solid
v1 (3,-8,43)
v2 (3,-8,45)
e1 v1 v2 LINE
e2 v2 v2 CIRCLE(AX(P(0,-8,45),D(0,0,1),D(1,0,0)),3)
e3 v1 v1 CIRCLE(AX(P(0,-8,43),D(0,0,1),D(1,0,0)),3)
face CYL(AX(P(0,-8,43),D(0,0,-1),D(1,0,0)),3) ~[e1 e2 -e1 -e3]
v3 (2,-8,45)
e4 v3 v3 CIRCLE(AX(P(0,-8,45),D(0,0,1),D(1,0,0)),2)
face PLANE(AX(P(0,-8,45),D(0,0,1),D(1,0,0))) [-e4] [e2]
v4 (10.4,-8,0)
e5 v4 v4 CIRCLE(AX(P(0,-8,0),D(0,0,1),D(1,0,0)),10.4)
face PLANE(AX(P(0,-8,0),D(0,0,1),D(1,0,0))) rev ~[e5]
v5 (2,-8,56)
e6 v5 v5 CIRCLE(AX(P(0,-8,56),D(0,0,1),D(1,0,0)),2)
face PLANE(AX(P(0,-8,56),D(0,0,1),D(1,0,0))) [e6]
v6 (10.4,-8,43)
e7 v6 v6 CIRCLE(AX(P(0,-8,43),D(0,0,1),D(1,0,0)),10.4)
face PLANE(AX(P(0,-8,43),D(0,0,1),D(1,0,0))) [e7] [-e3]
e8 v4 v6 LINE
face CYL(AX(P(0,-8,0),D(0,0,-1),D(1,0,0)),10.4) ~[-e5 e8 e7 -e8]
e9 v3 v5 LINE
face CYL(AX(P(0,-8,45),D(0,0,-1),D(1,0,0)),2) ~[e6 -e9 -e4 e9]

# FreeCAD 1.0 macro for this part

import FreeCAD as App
import Part
import Sketcher
Q = App.Units.Quantity

doc = App.newDocument("Part")
body = doc.addObject("PartDesign::Body", "Body")

sketch1 = doc.addObject("Sketcher::SketchObject", "Sketch")
body.addObject(sketch1)
sketch1.AttachmentSupport = (doc.XY_Plane, [""])
sketch1.MapMode = "FlatFace"
sketch1.addGeometry(Part.Circle(App.Vector(0, 0, 0), App.Vector(0, 0, 1), 10), False)
sketch1.addConstraint(Sketcher.Constraint("Coincident", 0, 3, -1, 1))
sketch1.addConstraint(Sketcher.Constraint("Diameter", 0, Q("20.8 mm")))
pad1 = doc.addObject("PartDesign::Pad", "Pad")
body.addObject(pad1)
pad1.Profile = sketch1
pad1.Length = 43

sketch2 = doc.addObject("Sketcher::SketchObject", "Sketch001")
body.addObject(sketch2)
sketch2.AttachmentSupport = (doc.XY_Plane, [""])
sketch2.MapMode = "FlatFace"
sketch2.AttachmentOffset = App.Placement(App.Vector(0, 0, 43), App.Rotation())
sketch2.addGeometry(Part.Circle(App.Vector(0, 0, 0), App.Vector(0, 0, 1), 3), False)
sketch2.addConstraint(Sketcher.Constraint("Coincident", 0, 3, -1, 1))
sketch2.addConstraint(Sketcher.Constraint("Diameter", 0, Q("6 mm")))
pad2 = doc.addObject("PartDesign::Pad", "Pad001")
body.addObject(pad2)
pad2.Profile = sketch2
pad2.Length = 2

sketch3 = doc.addObject("Sketcher::SketchObject", "Sketch002")
body.addObject(sketch3)
sketch3.AttachmentSupport = (doc.XY_Plane, [""])
sketch3.MapMode = "FlatFace"
sketch3.AttachmentOffset = App.Placement(App.Vector(0, 0, 45), App.Rotation())
sketch3.addGeometry(Part.Circle(App.Vector(0, 0, 0), App.Vector(0, 0, 1), 2), False)
sketch3.addConstraint(Sketcher.Constraint("Coincident", 0, 3, -1, 1))
sketch3.addConstraint(Sketcher.Constraint("Diameter", 0, Q("4 mm")))
pad3 = doc.addObject("PartDesign::Pad", "Pad002")
body.addObject(pad3)
pad3.Profile = sketch3
pad3.Length = 11
body2 = doc.addObject("PartDesign::Body", "Body001")
doc.recompute()

body.Placement = App.Placement(App.Vector(0, -8, 0), App.Rotation(App.Vector(0, 0, 1), 0))
boolean = doc.addObject("PartDesign::Boolean", "Boolean")
body2.addObject(boolean)
boolean.Type = "Fuse"
boolean.addObjects([body])

doc.recompute()
